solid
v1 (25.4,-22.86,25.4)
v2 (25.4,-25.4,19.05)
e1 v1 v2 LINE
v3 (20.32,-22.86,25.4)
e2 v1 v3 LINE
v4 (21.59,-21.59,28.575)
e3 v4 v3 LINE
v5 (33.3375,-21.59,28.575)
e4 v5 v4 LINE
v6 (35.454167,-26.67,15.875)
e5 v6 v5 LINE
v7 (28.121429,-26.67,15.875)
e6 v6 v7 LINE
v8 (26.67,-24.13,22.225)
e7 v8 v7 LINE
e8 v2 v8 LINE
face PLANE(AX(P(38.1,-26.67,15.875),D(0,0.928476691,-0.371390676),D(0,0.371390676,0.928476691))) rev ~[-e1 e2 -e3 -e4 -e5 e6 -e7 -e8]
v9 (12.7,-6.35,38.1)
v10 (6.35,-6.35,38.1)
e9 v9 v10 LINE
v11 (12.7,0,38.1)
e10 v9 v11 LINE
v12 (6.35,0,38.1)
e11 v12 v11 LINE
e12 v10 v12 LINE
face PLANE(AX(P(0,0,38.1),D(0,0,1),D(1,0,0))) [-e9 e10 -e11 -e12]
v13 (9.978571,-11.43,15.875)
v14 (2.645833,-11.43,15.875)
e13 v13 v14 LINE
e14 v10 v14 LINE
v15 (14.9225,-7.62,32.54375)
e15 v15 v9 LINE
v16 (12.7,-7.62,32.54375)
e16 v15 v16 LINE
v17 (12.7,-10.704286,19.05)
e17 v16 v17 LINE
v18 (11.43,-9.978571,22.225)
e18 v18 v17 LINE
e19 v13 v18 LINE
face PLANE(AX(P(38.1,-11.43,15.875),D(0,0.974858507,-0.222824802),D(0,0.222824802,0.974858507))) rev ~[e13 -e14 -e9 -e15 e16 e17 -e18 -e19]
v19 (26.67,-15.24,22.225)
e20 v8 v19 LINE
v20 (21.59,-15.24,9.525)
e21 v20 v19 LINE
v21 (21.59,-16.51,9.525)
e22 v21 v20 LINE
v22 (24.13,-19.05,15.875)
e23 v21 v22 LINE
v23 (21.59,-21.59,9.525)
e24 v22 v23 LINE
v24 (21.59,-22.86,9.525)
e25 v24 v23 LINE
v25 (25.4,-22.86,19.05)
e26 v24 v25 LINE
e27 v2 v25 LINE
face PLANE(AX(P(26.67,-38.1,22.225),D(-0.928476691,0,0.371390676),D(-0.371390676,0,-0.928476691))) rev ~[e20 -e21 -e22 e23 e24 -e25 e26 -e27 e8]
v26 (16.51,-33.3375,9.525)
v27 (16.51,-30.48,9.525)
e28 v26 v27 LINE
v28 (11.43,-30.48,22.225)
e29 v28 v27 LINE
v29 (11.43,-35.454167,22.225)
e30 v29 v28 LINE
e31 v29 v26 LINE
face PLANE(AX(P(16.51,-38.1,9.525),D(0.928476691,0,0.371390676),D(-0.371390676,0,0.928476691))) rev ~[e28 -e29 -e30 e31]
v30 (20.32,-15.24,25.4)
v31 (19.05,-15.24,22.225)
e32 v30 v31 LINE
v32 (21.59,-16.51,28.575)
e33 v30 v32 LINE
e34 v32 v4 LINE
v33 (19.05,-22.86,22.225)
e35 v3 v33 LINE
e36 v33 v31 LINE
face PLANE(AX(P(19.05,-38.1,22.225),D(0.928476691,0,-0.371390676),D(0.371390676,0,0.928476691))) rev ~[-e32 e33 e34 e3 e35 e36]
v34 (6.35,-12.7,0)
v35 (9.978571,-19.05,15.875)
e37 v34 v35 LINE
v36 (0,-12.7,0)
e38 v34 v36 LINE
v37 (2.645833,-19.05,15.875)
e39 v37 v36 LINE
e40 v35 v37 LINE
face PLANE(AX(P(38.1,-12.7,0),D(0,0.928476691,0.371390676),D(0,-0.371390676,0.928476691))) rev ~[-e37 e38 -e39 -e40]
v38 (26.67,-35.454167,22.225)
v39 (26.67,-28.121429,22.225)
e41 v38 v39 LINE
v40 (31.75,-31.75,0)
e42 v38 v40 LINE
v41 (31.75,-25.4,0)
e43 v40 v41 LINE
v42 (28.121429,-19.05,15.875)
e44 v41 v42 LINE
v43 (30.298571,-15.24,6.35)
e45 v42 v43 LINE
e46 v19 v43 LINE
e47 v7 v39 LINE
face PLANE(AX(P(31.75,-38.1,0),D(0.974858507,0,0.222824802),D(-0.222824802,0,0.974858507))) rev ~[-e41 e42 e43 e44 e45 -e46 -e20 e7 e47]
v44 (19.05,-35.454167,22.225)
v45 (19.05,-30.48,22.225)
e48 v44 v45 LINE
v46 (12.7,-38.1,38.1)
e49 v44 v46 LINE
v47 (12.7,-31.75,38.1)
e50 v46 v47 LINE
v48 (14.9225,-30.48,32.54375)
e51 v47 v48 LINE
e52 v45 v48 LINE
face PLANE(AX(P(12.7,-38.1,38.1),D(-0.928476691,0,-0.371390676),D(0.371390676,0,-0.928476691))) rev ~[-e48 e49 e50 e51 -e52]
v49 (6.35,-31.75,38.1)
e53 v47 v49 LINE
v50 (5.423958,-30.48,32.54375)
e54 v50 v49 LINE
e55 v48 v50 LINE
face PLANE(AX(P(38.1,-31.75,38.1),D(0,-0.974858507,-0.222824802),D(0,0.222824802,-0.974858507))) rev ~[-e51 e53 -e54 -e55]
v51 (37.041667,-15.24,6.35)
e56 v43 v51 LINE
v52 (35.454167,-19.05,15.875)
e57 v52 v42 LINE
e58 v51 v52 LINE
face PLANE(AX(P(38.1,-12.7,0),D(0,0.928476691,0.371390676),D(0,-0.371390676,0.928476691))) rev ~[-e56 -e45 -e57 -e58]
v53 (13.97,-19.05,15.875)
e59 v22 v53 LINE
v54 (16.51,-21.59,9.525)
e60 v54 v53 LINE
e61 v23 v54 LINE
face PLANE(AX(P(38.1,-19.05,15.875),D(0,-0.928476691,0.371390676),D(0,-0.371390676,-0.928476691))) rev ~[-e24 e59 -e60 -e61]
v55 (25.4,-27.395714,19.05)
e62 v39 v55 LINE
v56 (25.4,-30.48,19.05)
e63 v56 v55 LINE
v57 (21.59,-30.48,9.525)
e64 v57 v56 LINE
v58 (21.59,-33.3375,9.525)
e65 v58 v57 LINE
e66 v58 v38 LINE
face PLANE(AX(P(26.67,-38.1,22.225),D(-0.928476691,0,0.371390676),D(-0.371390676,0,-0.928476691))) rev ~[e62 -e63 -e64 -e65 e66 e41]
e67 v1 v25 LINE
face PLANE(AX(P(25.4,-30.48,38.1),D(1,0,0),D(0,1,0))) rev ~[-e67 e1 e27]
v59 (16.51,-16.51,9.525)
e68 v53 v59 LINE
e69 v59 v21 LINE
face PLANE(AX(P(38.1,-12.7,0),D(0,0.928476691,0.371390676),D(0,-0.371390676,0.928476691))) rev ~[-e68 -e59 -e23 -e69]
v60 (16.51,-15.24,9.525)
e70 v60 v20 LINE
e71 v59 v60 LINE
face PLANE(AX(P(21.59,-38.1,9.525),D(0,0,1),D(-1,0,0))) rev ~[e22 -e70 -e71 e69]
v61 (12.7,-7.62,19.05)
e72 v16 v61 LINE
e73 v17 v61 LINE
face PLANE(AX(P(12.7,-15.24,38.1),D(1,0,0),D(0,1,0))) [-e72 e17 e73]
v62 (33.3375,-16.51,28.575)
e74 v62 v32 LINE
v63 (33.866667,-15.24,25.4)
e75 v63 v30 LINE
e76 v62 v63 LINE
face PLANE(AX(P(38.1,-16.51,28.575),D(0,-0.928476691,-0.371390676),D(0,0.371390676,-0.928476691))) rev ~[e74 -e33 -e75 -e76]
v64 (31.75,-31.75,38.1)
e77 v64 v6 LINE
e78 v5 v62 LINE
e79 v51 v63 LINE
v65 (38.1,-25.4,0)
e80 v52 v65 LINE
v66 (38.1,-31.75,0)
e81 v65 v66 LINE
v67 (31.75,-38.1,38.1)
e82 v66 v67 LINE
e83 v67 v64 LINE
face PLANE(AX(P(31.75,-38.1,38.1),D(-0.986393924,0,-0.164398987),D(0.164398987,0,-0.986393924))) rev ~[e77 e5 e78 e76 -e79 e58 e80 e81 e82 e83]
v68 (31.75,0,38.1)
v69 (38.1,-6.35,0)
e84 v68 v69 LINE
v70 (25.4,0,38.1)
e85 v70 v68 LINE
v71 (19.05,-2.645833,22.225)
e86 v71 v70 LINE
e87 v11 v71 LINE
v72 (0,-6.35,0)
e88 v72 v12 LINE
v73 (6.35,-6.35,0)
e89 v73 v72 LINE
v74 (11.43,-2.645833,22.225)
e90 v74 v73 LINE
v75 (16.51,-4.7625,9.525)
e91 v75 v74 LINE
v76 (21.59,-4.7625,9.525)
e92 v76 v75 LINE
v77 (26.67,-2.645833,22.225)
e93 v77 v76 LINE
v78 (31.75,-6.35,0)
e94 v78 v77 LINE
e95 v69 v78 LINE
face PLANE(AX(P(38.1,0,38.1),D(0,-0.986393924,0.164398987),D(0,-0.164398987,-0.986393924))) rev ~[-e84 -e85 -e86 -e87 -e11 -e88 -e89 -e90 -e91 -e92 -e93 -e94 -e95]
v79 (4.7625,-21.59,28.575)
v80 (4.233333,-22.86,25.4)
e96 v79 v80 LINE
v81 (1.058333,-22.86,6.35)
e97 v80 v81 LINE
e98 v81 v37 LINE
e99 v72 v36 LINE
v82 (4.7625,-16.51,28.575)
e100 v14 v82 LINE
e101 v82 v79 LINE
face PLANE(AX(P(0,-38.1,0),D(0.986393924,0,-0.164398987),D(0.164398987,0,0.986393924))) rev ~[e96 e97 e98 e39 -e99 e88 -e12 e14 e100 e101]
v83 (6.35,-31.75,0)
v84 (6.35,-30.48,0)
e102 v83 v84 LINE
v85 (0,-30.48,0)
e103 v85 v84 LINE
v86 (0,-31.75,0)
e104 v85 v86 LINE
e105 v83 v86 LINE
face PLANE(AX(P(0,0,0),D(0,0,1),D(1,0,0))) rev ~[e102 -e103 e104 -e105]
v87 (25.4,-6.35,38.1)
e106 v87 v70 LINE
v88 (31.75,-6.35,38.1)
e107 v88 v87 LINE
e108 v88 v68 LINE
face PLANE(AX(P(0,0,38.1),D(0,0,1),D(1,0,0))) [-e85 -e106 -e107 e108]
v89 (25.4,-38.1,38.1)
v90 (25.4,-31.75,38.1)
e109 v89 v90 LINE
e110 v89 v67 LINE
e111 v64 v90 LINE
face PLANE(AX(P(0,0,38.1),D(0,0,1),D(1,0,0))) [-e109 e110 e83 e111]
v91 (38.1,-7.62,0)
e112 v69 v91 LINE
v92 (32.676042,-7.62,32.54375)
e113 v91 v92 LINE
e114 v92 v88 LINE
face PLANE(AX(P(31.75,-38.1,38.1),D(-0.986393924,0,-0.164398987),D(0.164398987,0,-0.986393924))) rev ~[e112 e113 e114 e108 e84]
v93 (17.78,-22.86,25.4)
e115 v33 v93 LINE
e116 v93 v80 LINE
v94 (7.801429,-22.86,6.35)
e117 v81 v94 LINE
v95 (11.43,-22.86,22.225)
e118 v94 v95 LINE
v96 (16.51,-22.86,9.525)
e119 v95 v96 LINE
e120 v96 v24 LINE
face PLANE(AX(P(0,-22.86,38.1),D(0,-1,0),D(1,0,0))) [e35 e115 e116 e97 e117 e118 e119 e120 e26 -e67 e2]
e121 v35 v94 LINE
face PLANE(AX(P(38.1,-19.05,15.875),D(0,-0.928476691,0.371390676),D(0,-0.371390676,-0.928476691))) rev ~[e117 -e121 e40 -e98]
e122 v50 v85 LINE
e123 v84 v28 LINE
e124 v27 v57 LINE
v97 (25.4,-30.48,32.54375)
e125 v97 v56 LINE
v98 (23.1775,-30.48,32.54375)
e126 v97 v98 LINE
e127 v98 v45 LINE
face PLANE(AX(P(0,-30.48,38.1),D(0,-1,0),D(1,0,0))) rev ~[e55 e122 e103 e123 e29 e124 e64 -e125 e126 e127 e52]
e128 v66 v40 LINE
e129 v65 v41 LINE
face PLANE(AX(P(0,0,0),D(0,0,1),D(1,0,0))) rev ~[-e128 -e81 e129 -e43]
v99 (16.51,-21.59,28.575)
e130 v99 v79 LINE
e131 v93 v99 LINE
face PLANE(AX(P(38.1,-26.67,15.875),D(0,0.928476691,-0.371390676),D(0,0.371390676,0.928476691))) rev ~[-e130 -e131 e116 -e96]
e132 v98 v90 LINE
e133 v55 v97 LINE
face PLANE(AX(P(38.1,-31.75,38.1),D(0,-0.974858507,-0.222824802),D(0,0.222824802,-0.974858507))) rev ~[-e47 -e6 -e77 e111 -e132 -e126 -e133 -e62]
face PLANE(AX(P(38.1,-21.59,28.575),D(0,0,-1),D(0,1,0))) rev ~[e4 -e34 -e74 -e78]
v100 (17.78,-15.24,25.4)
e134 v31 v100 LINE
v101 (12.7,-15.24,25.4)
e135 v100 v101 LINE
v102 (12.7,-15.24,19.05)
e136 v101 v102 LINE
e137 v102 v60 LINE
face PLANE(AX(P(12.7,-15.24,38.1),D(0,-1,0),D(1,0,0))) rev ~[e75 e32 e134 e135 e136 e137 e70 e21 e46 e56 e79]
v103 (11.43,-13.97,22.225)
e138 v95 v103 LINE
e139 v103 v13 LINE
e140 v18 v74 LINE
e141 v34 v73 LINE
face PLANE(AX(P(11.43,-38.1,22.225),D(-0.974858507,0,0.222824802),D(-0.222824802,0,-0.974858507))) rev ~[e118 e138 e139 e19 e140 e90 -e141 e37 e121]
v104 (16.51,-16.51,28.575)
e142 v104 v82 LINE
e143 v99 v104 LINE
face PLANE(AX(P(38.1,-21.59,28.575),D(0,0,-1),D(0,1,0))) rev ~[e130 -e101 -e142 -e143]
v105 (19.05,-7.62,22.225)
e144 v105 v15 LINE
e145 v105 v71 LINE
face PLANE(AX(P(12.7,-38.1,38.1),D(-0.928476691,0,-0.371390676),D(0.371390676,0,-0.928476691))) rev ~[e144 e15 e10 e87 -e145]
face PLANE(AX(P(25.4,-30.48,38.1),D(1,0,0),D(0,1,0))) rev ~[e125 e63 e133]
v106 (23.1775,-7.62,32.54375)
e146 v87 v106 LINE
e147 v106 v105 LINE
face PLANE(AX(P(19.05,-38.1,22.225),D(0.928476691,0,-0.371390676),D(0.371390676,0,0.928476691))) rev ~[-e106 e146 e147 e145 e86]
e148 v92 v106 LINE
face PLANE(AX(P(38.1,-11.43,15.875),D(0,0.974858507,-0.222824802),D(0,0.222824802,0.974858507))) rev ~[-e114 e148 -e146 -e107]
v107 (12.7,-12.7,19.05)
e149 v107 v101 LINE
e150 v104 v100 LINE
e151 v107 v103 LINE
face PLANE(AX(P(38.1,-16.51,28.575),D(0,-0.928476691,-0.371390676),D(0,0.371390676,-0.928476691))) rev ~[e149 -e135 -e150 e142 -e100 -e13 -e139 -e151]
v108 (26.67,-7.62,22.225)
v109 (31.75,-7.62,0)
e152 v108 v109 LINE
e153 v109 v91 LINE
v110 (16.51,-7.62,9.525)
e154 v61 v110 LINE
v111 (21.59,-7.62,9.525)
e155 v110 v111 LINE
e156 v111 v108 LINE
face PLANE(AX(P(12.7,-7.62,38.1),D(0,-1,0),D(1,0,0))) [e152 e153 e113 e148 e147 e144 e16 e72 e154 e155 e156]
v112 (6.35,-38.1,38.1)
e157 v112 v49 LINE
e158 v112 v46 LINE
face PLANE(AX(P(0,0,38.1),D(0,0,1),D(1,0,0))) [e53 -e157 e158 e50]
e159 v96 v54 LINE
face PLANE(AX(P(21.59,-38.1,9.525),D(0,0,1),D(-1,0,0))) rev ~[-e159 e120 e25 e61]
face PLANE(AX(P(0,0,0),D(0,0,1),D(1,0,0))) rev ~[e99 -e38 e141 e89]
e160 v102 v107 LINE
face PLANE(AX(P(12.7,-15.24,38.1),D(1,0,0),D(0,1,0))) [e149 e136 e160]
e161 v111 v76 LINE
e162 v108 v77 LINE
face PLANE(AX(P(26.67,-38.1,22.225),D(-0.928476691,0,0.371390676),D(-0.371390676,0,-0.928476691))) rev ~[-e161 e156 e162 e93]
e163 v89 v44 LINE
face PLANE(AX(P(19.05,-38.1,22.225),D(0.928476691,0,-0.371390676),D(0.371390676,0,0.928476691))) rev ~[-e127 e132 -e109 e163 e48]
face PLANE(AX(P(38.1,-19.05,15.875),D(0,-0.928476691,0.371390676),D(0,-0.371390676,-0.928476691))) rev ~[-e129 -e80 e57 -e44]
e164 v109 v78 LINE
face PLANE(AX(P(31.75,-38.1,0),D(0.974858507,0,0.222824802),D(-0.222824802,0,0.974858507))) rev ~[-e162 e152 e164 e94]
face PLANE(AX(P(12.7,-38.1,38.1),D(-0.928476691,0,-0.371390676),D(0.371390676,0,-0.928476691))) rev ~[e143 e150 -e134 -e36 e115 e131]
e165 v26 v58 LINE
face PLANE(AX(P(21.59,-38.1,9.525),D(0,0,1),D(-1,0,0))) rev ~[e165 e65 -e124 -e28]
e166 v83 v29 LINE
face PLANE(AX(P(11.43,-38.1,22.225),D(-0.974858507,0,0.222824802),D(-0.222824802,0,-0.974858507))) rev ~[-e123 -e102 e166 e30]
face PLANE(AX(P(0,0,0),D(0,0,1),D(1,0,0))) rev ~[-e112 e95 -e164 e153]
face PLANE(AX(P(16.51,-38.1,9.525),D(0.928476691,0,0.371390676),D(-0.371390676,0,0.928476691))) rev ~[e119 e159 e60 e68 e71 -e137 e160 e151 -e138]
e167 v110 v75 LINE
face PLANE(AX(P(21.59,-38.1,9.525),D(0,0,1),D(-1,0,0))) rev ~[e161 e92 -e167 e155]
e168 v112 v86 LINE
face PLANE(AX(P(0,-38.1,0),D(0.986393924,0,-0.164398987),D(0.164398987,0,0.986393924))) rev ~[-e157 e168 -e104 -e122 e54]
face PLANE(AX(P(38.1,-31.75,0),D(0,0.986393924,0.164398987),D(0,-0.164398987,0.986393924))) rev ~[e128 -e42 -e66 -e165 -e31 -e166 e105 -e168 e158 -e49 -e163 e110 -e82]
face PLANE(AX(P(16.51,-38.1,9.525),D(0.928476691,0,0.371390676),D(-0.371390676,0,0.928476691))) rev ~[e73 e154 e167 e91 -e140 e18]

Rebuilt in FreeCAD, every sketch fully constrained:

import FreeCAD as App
import Part
import Sketcher
Q = App.Units.Quantity


def add_polygon(sketch, points):
    """Adds a closed chain of lines whose ends are joined by coincident constraints."""
    first, n = sketch.GeometryCount, len(points)
    for a, b in zip(points, points[1:] + points[:1]):
        sketch.addGeometry(Part.LineSegment(App.Vector(*a, 0), App.Vector(*b, 0)), False)
    for i in range(n):
        sketch.addConstraint(Sketcher.Constraint("Coincident", first + i, 2, first + (i + 1) % n, 1))

doc = App.newDocument("Part")
body = doc.addObject("PartDesign::Body", "Body")

# Sketch on XZ plane
sketch1 = body.newObject("Sketcher::SketchObject", "Sketch")
sketch1.AttachmentSupport = (doc.getObject("XZ_Plane"), [""])
sketch1.MapMode = "FlatFace"
add_polygon(sketch1, [(0, 38), (0, 0), (38, 0), (38, 38)])  # lines 0-3
sketch1.addConstraint([
    Sketcher.Constraint("Vertical", 0),
    Sketcher.Constraint("Horizontal", 1),
    Sketcher.Constraint("Vertical", 2),
    Sketcher.Constraint("Horizontal", 3),
    Sketcher.Constraint("Coincident", 0, 2, -1, 1),
    Sketcher.Constraint("Equal", 3, 0),
    Sketcher.Constraint("DistanceX", 1, 1, 1, 2, Q("1.5 in")),
])
pad1 = body.newObject("PartDesign::Pad", "Pad")
pad1.Profile = sketch1
pad1.Length = Q("1.5 in")

# Sketch on YZ plane
sketch2 = body.newObject("Sketcher::SketchObject", "Sketch001")
sketch2.AttachmentSupport = (doc.getObject("YZ_Plane"), [""])
sketch2.MapMode = "FlatFace"
sketch2.AttachmentOffset = App.Placement(App.Vector(0, 0, 1.5 * 25.4), App.Rotation())
add_polygon(sketch2, [(-11, 16), (-6, 38), (-32, 38), (-27, 16), (-22, 29), (-17, 29)])  # lines 0-5
add_polygon(sketch2, [(-32, 0), (-38, 38), (-38, 0)])  # lines 6-8
add_polygon(sketch2, [(-25, 0), (-13, 0), (-19, 16)])  # lines 9-11
add_polygon(sketch2, [(-6, 0), (0, 0), (0, 38)])  # lines 12-14
sketch2.addConstraint([
    Sketcher.Constraint("Horizontal", 1),
    Sketcher.Constraint("Horizontal", 4),
    Sketcher.Constraint("Vertical", 7),
    Sketcher.Constraint("Horizontal", 8),
    Sketcher.Constraint("Horizontal", 9),
    Sketcher.Constraint("Horizontal", 12),
    Sketcher.Constraint("Vertical", 13),
    Sketcher.Constraint("Coincident", 12, 2, -1, 1),
    Sketcher.Constraint("PointOnObject", 7, 2, -1),
    Sketcher.Constraint("PointOnObject", 9, 2, -1),
    Sketcher.Constraint("Parallel", 5, 10),
    Sketcher.Constraint("Parallel", 3, 11),
    Sketcher.Constraint("Horizontal", 2, 2, 5, 2),
    Sketcher.Constraint("Horizontal", 1, 2, 6, 2),
    Sketcher.Constraint("Horizontal", 5, 2, 10, 2),
    Sketcher.Constraint("Horizontal", 6, 2, 13, 2),
    Sketcher.Constraint("Vertical", 1, 2, 8, 2),
    Sketcher.Constraint("Vertical", 0, 2, 14, 2),
    Sketcher.Constraint("Equal", 8, 12),
    Sketcher.Constraint("Equal", 0, 2),
    Sketcher.Constraint("Equal", 3, 5),
    Sketcher.Constraint("DistanceX", 1, 2, 1, 1, Q("1 in")),
    Sketcher.Constraint("DistanceX", 4, 1, 4, 2, Q("0.2 in")),
    Sketcher.Constraint("DistanceX", 9, 1, 9, 2, Q("0.5 in")),
    Sketcher.Constraint("DistanceY", 7, 2, 7, 1, Q("1.5 in")),
    Sketcher.Constraint("DistanceX", 11, 2, -1, 1, Q("1 in")),
    Sketcher.Constraint("DistanceX", 7, 2, 9, 2, Q("1 in")),
    Sketcher.Constraint("DistanceX", 1, 2, 2, 2, Q("0.2 in")),
    Sketcher.Constraint("DistanceY", 2, 2, 3, 2, Q("0.5 in")),
])
pocket1 = body.newObject("PartDesign::Pocket", "Pocket")
pocket1.Profile = sketch2
pocket1.Length = Q("1.5 in")

# Sketch on XZ plane
sketch3 = body.newObject("Sketcher::SketchObject", "Sketch002")
sketch3.AttachmentSupport = (doc.getObject("XZ_Plane"), [""])
sketch3.MapMode = "FlatFace"
sketch3.AttachmentOffset = App.Placement(App.Vector(0, 0, 1.5 * 25.4), App.Rotation())
add_polygon(sketch3, [(25, 38), (13, 38), (19, 22)])  # lines 0-2
add_polygon(sketch3, [(32, 38), (38, 0), (38, 38)])  # lines 3-5
add_polygon(sketch3, [(6, 38), (0, 38), (0, 0)])  # lines 6-8
add_polygon(sketch3, [(11, 22), (6, 0), (32, 0), (27, 22), (22, 10), (17, 10)])  # lines 9-14
sketch3.addConstraint([
    Sketcher.Constraint("Horizontal", 0),
    Sketcher.Constraint("Vertical", 4),
    Sketcher.Constraint("Horizontal", 5),
    Sketcher.Constraint("Horizontal", 6),
    Sketcher.Constraint("Vertical", 7),
    Sketcher.Constraint("Horizontal", 10),
    Sketcher.Constraint("Horizontal", 13),
    Sketcher.Constraint("Coincident", 7, 2, -1, 1),
    Sketcher.Constraint("PointOnObject", 3, 2, -1),
    Sketcher.Constraint("PointOnObject", 9, 2, -1),
    Sketcher.Constraint("Parallel", 2, 12),
    Sketcher.Constraint("Parallel", 1, 14),
    Sketcher.Constraint("Horizontal", 2, 2, 4, 2),
    Sketcher.Constraint("Horizontal", 5, 2, 6, 2),
    Sketcher.Constraint("Horizontal", 1, 2, 11, 2),
    Sketcher.Constraint("Horizontal", 11, 2, 14, 2),
    Sketcher.Constraint("Vertical", 8, 2, 9, 2),
    Sketcher.Constraint("Vertical", 5, 2, 10, 2),
    Sketcher.Constraint("Equal", 5, 6),
    Sketcher.Constraint("Equal", 1, 2),
    Sketcher.Constraint("Equal", 9, 11),
    Sketcher.Constraint("DistanceX", 10, 1, 10, 2, Q("1 in")),
    Sketcher.Constraint("DistanceX", 0, 2, 0, 1, Q("0.5 in")),
    Sketcher.Constraint("DistanceX", 13, 2, 13, 1, Q("0.2 in")),
    Sketcher.Constraint("DistanceY", 4, 1, 4, 2, Q("1.5 in")),
    Sketcher.Constraint("DistanceX", -1, 1, 2, 2, Q("1 in")),
    Sketcher.Constraint("DistanceX", 0, 2, 3, 2, Q("1 in")),
    Sketcher.Constraint("DistanceX", 1, 2, 11, 2, Q("0.3 in")),
    Sketcher.Constraint("DistanceY", 12, 2, 1, 2, Q("0.5 in")),
])
pocket2 = body.newObject("PartDesign::Pocket", "Pocket001")
pocket2.Profile = sketch3
pocket2.Length = Q("1.5 in")

# Sketch on XY plane
sketch4 = body.newObject("Sketcher::SketchObject", "Sketch003")
sketch4.AttachmentSupport = (doc.getObject("XY_Plane"), [""])
sketch4.MapMode = "FlatFace"
sketch4.AttachmentOffset = App.Placement(App.Vector(0, 0, 1.5 * 25.4), App.Rotation())
add_polygon(sketch4, [(0, -23), (0, -30), (25, -30), (25, -23)])  # lines 0-3
add_polygon(sketch4, [(13, -8), (13, -15), (38, -15), (38, -8)])  # lines 4-7
sketch4.addConstraint([
    Sketcher.Constraint("Vertical", 0),
    Sketcher.Constraint("Horizontal", 1),
    Sketcher.Constraint("Vertical", 2),
    Sketcher.Constraint("Horizontal", 3),
    Sketcher.Constraint("Vertical", 4),
    Sketcher.Constraint("Horizontal", 5),
    Sketcher.Constraint("Vertical", 6),
    Sketcher.Constraint("Horizontal", 7),
    Sketcher.Constraint("PointOnObject", 0, 2, -2),
    Sketcher.Constraint("Equal", 3, 5),
    Sketcher.Constraint("Equal", 2, 4),
    Sketcher.Constraint("DistanceX", 1, 1, 1, 2, Q("1 in")),
    Sketcher.Constraint("DistanceY", 0, 2, 0, 1, Q("0.3 in")),
    Sketcher.Constraint("DistanceY", 0, 2, -1, 1, Q("1.2 in")),
    Sketcher.Constraint("DistanceX", -1, 1, 4, 2, Q("0.5 in")),
    Sketcher.Constraint("DistanceY", 4, 2, -1, 1, Q("0.6 in")),
])
pocket3 = body.newObject("PartDesign::Pocket", "Pocket002")
pocket3.Profile = sketch4
pocket3.Length = Q("1.5 in")

doc.recompute()
